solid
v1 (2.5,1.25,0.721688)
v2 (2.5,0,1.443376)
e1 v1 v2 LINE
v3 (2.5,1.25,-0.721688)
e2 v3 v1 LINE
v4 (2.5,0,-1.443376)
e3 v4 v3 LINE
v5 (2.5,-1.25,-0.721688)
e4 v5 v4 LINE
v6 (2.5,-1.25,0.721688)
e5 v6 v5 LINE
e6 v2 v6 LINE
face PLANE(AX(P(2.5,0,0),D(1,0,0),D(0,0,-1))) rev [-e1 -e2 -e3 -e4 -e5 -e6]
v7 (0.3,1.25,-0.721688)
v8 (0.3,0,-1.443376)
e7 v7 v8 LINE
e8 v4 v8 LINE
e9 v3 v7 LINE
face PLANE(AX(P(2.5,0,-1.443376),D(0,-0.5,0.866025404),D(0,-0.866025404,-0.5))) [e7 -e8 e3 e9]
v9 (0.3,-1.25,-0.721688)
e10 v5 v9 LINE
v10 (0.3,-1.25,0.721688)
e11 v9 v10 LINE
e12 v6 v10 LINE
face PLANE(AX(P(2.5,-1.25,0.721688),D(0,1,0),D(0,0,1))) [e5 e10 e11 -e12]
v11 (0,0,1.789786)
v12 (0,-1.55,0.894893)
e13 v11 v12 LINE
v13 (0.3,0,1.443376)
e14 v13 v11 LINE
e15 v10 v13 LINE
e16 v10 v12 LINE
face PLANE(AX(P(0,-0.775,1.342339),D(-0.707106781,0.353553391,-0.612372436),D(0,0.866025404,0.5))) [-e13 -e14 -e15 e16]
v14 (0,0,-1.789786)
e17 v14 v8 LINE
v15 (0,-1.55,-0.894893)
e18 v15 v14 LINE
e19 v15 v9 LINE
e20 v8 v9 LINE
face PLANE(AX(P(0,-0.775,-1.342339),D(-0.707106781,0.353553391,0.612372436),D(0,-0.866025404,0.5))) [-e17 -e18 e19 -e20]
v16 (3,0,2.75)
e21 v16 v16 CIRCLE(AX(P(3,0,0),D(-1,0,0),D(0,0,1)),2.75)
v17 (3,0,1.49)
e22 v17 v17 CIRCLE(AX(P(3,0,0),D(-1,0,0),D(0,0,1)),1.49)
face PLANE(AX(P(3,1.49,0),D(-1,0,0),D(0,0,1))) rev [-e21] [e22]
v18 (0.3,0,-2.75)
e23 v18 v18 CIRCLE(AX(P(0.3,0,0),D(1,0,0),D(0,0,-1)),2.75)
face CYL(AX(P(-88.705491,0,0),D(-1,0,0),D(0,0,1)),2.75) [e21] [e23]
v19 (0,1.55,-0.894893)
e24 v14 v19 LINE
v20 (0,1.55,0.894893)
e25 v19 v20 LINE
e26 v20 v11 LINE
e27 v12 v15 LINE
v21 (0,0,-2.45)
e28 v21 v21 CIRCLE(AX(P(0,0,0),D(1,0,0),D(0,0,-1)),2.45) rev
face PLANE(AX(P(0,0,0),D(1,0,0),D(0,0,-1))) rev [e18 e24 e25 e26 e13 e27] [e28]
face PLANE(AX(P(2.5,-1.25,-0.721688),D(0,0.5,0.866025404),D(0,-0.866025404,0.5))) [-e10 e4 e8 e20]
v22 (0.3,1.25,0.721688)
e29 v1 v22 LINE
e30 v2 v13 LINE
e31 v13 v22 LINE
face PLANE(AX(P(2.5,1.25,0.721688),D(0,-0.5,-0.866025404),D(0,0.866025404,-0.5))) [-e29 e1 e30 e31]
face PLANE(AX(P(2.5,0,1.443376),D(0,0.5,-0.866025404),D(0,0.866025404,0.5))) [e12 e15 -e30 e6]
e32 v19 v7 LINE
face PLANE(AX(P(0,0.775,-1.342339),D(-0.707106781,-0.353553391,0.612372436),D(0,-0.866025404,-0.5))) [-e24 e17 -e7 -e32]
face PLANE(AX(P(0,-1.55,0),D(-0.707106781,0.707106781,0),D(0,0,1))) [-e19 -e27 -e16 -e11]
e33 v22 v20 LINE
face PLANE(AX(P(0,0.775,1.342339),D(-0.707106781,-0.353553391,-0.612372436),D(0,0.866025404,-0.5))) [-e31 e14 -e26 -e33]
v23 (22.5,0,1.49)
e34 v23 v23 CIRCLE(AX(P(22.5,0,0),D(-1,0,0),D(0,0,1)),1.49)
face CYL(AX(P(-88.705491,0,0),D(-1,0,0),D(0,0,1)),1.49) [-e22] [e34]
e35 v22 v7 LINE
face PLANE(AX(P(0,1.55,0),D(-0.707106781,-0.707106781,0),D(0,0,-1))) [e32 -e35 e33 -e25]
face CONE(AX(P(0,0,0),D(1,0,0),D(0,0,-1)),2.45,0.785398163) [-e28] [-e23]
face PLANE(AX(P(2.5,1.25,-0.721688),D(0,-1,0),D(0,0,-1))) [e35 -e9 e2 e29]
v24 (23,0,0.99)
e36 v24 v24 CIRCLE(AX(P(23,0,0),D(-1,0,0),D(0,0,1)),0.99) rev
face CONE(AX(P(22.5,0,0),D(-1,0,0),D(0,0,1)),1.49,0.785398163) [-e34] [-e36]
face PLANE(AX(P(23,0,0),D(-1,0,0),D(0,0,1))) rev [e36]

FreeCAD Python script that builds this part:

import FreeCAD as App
import Part
import Sketcher
from FreeCAD import Vector
Q = App.Units.Quantity


def edges_at(feature, points):
    """Names of the edges that pass closest to the given points."""
    edges = feature.Shape.Edges
    near = lambda p: min(range(len(edges)), key=lambda i: edges[i].distToShape(Part.Vertex(*p))[0])
    return sorted({f"Edge{near(p) + 1}" for p in points})

doc = App.newDocument("Part")
body = doc.addObject("PartDesign::Body", "Body")

# Sketch on XY plane
sketch1 = body.newObject("Sketcher::SketchObject", "Sketch")
sketch1.AttachmentSupport = (doc.getObject("XY_Plane"), [""])
sketch1.MapMode = "FlatFace"
sketch1.addGeometry([
    Part.LineSegment(Vector(0, 2.8, 0), Vector(0, 0, 0)),  # 0
    Part.LineSegment(Vector(0, 0, 0), Vector(23, 0, 0)),  # 1
    Part.LineSegment(Vector(23, 0, 0), Vector(23, 1.5, 0)),  # 2
    Part.LineSegment(Vector(23, 1.5, 0), Vector(3, 1.5, 0)),  # 3
    Part.LineSegment(Vector(3, 1.5, 0), Vector(3, 2.8, 0)),  # 4
    Part.LineSegment(Vector(3, 2.8, 0), Vector(0, 2.8, 0)),  # 5
], False)
sketch1.addConstraint([
    Sketcher.Constraint("Coincident", 0, 2, 1, 1),
    Sketcher.Constraint("Coincident", 1, 2, 2, 1),
    Sketcher.Constraint("Coincident", 2, 2, 3, 1),
    Sketcher.Constraint("Coincident", 3, 2, 4, 1),
    Sketcher.Constraint("Coincident", 4, 2, 5, 1),
    Sketcher.Constraint("Coincident", 5, 2, 0, 1),
    Sketcher.Constraint("Vertical", 0),
    Sketcher.Constraint("Horizontal", 1),
    Sketcher.Constraint("Vertical", 2),
    Sketcher.Constraint("Horizontal", 3),
    Sketcher.Constraint("Vertical", 4),
    Sketcher.Constraint("Horizontal", 5),
    Sketcher.Constraint("Coincident", 0, 2, -1, 1),
    Sketcher.Constraint("DistanceX", 1, 1, 1, 2, Q("23 mm")),
    Sketcher.Constraint("DistanceX", 3, 2, 3, 1, Q("20 mm")),
    Sketcher.Constraint("DistanceY", 0, 2, 0, 1, Q("2.75 mm")),
    Sketcher.Constraint("DistanceY", 2, 1, 2, 2, Q("1.49 mm")),
])
revolution = body.newObject("PartDesign::Revolution", "Revolution")
revolution.Profile = sketch1
revolution.ReferenceAxis = (sketch1, ["H_Axis"])
revolution.Angle = 360
doc.recompute()

chamfer = body.newObject("PartDesign::Chamfer", "Chamfer")
chamfer.Base = (revolution, edges_at(revolution, [(23, -1.49, 0)]))
chamfer.Size = 0.5
doc.recompute()

chamfer2 = body.newObject("PartDesign::Chamfer", "Chamfer001")
chamfer2.Base = (chamfer, edges_at(chamfer, [(0, -2.75, 0)]))
chamfer2.Size = 0.3

# Sketch on YZ plane
sketch2 = body.newObject("Sketcher::SketchObject", "Sketch001")
sketch2.AttachmentSupport = (doc.getObject("YZ_Plane"), [""])
sketch2.MapMode = "FlatFace"
sketch2.addGeometry([
    Part.LineSegment(Vector(0, 1.4, 0), Vector(-1.2, 0.7, 0)),  # 0
    Part.LineSegment(Vector(-1.2, 0.7, 0), Vector(-1.2, -0.7, 0)),  # 1
    Part.LineSegment(Vector(-1.2, -0.7, 0), Vector(0, -1.4, 0)),  # 2
    Part.LineSegment(Vector(0, -1.4, 0), Vector(1.2, -0.7, 0)),  # 3
    Part.LineSegment(Vector(1.2, -0.7, 0), Vector(1.2, 0.7, 0)),  # 4
    Part.LineSegment(Vector(1.2, 0.7, 0), Vector(0, 1.4, 0)),  # 5
], False)
sketch2.addConstraint([
    Sketcher.Constraint("Coincident", 0, 2, 1, 1),
    Sketcher.Constraint("Coincident", 1, 2, 2, 1),
    Sketcher.Constraint("Coincident", 2, 2, 3, 1),
    Sketcher.Constraint("Coincident", 3, 2, 4, 1),
    Sketcher.Constraint("Coincident", 4, 2, 5, 1),
    Sketcher.Constraint("Coincident", 5, 2, 0, 1),
    Sketcher.Constraint("Vertical", 1),
    Sketcher.Constraint("Vertical", 4),
    Sketcher.Constraint("Symmetric", 0, 2, 3, 2, -1, 1),
    Sketcher.Constraint("Symmetric", 2, 2, 5, 2, -1, 1),
    Sketcher.Constraint("PointOnObject", 2, 2, -2),
    Sketcher.Constraint("Parallel", 2, 5),
    Sketcher.Constraint("Horizontal", 1, 2, 3, 2),
    Sketcher.Constraint("Angle", 0, Q("-150 deg")),
    Sketcher.Constraint("DistanceX", 1, 2, 3, 2, Q("2.5 mm")),
    Sketcher.Constraint("DistanceY", 1, 2, 1, 1, Q("1.443376 mm")),
])
pocket1 = body.newObject("PartDesign::Pocket", "Pocket")
pocket1.Profile = sketch2
pocket1.Length = 2.5
pocket1.Reversed = True
doc.recompute()

chamfer3 = body.newObject("PartDesign::Chamfer", "Chamfer002")
chamfer3.Base = (pocket1, edges_at(pocket1, [
    (0, 0.625, 1.083),
    (0, -0.625, 1.083),
    (0, -1.25, 0),
    (0, -0.625, -1.083),
    (0, 0.625, -1.083),
    (0, 1.25, 0),
]))
chamfer3.Size = 0.3

doc.recompute()
